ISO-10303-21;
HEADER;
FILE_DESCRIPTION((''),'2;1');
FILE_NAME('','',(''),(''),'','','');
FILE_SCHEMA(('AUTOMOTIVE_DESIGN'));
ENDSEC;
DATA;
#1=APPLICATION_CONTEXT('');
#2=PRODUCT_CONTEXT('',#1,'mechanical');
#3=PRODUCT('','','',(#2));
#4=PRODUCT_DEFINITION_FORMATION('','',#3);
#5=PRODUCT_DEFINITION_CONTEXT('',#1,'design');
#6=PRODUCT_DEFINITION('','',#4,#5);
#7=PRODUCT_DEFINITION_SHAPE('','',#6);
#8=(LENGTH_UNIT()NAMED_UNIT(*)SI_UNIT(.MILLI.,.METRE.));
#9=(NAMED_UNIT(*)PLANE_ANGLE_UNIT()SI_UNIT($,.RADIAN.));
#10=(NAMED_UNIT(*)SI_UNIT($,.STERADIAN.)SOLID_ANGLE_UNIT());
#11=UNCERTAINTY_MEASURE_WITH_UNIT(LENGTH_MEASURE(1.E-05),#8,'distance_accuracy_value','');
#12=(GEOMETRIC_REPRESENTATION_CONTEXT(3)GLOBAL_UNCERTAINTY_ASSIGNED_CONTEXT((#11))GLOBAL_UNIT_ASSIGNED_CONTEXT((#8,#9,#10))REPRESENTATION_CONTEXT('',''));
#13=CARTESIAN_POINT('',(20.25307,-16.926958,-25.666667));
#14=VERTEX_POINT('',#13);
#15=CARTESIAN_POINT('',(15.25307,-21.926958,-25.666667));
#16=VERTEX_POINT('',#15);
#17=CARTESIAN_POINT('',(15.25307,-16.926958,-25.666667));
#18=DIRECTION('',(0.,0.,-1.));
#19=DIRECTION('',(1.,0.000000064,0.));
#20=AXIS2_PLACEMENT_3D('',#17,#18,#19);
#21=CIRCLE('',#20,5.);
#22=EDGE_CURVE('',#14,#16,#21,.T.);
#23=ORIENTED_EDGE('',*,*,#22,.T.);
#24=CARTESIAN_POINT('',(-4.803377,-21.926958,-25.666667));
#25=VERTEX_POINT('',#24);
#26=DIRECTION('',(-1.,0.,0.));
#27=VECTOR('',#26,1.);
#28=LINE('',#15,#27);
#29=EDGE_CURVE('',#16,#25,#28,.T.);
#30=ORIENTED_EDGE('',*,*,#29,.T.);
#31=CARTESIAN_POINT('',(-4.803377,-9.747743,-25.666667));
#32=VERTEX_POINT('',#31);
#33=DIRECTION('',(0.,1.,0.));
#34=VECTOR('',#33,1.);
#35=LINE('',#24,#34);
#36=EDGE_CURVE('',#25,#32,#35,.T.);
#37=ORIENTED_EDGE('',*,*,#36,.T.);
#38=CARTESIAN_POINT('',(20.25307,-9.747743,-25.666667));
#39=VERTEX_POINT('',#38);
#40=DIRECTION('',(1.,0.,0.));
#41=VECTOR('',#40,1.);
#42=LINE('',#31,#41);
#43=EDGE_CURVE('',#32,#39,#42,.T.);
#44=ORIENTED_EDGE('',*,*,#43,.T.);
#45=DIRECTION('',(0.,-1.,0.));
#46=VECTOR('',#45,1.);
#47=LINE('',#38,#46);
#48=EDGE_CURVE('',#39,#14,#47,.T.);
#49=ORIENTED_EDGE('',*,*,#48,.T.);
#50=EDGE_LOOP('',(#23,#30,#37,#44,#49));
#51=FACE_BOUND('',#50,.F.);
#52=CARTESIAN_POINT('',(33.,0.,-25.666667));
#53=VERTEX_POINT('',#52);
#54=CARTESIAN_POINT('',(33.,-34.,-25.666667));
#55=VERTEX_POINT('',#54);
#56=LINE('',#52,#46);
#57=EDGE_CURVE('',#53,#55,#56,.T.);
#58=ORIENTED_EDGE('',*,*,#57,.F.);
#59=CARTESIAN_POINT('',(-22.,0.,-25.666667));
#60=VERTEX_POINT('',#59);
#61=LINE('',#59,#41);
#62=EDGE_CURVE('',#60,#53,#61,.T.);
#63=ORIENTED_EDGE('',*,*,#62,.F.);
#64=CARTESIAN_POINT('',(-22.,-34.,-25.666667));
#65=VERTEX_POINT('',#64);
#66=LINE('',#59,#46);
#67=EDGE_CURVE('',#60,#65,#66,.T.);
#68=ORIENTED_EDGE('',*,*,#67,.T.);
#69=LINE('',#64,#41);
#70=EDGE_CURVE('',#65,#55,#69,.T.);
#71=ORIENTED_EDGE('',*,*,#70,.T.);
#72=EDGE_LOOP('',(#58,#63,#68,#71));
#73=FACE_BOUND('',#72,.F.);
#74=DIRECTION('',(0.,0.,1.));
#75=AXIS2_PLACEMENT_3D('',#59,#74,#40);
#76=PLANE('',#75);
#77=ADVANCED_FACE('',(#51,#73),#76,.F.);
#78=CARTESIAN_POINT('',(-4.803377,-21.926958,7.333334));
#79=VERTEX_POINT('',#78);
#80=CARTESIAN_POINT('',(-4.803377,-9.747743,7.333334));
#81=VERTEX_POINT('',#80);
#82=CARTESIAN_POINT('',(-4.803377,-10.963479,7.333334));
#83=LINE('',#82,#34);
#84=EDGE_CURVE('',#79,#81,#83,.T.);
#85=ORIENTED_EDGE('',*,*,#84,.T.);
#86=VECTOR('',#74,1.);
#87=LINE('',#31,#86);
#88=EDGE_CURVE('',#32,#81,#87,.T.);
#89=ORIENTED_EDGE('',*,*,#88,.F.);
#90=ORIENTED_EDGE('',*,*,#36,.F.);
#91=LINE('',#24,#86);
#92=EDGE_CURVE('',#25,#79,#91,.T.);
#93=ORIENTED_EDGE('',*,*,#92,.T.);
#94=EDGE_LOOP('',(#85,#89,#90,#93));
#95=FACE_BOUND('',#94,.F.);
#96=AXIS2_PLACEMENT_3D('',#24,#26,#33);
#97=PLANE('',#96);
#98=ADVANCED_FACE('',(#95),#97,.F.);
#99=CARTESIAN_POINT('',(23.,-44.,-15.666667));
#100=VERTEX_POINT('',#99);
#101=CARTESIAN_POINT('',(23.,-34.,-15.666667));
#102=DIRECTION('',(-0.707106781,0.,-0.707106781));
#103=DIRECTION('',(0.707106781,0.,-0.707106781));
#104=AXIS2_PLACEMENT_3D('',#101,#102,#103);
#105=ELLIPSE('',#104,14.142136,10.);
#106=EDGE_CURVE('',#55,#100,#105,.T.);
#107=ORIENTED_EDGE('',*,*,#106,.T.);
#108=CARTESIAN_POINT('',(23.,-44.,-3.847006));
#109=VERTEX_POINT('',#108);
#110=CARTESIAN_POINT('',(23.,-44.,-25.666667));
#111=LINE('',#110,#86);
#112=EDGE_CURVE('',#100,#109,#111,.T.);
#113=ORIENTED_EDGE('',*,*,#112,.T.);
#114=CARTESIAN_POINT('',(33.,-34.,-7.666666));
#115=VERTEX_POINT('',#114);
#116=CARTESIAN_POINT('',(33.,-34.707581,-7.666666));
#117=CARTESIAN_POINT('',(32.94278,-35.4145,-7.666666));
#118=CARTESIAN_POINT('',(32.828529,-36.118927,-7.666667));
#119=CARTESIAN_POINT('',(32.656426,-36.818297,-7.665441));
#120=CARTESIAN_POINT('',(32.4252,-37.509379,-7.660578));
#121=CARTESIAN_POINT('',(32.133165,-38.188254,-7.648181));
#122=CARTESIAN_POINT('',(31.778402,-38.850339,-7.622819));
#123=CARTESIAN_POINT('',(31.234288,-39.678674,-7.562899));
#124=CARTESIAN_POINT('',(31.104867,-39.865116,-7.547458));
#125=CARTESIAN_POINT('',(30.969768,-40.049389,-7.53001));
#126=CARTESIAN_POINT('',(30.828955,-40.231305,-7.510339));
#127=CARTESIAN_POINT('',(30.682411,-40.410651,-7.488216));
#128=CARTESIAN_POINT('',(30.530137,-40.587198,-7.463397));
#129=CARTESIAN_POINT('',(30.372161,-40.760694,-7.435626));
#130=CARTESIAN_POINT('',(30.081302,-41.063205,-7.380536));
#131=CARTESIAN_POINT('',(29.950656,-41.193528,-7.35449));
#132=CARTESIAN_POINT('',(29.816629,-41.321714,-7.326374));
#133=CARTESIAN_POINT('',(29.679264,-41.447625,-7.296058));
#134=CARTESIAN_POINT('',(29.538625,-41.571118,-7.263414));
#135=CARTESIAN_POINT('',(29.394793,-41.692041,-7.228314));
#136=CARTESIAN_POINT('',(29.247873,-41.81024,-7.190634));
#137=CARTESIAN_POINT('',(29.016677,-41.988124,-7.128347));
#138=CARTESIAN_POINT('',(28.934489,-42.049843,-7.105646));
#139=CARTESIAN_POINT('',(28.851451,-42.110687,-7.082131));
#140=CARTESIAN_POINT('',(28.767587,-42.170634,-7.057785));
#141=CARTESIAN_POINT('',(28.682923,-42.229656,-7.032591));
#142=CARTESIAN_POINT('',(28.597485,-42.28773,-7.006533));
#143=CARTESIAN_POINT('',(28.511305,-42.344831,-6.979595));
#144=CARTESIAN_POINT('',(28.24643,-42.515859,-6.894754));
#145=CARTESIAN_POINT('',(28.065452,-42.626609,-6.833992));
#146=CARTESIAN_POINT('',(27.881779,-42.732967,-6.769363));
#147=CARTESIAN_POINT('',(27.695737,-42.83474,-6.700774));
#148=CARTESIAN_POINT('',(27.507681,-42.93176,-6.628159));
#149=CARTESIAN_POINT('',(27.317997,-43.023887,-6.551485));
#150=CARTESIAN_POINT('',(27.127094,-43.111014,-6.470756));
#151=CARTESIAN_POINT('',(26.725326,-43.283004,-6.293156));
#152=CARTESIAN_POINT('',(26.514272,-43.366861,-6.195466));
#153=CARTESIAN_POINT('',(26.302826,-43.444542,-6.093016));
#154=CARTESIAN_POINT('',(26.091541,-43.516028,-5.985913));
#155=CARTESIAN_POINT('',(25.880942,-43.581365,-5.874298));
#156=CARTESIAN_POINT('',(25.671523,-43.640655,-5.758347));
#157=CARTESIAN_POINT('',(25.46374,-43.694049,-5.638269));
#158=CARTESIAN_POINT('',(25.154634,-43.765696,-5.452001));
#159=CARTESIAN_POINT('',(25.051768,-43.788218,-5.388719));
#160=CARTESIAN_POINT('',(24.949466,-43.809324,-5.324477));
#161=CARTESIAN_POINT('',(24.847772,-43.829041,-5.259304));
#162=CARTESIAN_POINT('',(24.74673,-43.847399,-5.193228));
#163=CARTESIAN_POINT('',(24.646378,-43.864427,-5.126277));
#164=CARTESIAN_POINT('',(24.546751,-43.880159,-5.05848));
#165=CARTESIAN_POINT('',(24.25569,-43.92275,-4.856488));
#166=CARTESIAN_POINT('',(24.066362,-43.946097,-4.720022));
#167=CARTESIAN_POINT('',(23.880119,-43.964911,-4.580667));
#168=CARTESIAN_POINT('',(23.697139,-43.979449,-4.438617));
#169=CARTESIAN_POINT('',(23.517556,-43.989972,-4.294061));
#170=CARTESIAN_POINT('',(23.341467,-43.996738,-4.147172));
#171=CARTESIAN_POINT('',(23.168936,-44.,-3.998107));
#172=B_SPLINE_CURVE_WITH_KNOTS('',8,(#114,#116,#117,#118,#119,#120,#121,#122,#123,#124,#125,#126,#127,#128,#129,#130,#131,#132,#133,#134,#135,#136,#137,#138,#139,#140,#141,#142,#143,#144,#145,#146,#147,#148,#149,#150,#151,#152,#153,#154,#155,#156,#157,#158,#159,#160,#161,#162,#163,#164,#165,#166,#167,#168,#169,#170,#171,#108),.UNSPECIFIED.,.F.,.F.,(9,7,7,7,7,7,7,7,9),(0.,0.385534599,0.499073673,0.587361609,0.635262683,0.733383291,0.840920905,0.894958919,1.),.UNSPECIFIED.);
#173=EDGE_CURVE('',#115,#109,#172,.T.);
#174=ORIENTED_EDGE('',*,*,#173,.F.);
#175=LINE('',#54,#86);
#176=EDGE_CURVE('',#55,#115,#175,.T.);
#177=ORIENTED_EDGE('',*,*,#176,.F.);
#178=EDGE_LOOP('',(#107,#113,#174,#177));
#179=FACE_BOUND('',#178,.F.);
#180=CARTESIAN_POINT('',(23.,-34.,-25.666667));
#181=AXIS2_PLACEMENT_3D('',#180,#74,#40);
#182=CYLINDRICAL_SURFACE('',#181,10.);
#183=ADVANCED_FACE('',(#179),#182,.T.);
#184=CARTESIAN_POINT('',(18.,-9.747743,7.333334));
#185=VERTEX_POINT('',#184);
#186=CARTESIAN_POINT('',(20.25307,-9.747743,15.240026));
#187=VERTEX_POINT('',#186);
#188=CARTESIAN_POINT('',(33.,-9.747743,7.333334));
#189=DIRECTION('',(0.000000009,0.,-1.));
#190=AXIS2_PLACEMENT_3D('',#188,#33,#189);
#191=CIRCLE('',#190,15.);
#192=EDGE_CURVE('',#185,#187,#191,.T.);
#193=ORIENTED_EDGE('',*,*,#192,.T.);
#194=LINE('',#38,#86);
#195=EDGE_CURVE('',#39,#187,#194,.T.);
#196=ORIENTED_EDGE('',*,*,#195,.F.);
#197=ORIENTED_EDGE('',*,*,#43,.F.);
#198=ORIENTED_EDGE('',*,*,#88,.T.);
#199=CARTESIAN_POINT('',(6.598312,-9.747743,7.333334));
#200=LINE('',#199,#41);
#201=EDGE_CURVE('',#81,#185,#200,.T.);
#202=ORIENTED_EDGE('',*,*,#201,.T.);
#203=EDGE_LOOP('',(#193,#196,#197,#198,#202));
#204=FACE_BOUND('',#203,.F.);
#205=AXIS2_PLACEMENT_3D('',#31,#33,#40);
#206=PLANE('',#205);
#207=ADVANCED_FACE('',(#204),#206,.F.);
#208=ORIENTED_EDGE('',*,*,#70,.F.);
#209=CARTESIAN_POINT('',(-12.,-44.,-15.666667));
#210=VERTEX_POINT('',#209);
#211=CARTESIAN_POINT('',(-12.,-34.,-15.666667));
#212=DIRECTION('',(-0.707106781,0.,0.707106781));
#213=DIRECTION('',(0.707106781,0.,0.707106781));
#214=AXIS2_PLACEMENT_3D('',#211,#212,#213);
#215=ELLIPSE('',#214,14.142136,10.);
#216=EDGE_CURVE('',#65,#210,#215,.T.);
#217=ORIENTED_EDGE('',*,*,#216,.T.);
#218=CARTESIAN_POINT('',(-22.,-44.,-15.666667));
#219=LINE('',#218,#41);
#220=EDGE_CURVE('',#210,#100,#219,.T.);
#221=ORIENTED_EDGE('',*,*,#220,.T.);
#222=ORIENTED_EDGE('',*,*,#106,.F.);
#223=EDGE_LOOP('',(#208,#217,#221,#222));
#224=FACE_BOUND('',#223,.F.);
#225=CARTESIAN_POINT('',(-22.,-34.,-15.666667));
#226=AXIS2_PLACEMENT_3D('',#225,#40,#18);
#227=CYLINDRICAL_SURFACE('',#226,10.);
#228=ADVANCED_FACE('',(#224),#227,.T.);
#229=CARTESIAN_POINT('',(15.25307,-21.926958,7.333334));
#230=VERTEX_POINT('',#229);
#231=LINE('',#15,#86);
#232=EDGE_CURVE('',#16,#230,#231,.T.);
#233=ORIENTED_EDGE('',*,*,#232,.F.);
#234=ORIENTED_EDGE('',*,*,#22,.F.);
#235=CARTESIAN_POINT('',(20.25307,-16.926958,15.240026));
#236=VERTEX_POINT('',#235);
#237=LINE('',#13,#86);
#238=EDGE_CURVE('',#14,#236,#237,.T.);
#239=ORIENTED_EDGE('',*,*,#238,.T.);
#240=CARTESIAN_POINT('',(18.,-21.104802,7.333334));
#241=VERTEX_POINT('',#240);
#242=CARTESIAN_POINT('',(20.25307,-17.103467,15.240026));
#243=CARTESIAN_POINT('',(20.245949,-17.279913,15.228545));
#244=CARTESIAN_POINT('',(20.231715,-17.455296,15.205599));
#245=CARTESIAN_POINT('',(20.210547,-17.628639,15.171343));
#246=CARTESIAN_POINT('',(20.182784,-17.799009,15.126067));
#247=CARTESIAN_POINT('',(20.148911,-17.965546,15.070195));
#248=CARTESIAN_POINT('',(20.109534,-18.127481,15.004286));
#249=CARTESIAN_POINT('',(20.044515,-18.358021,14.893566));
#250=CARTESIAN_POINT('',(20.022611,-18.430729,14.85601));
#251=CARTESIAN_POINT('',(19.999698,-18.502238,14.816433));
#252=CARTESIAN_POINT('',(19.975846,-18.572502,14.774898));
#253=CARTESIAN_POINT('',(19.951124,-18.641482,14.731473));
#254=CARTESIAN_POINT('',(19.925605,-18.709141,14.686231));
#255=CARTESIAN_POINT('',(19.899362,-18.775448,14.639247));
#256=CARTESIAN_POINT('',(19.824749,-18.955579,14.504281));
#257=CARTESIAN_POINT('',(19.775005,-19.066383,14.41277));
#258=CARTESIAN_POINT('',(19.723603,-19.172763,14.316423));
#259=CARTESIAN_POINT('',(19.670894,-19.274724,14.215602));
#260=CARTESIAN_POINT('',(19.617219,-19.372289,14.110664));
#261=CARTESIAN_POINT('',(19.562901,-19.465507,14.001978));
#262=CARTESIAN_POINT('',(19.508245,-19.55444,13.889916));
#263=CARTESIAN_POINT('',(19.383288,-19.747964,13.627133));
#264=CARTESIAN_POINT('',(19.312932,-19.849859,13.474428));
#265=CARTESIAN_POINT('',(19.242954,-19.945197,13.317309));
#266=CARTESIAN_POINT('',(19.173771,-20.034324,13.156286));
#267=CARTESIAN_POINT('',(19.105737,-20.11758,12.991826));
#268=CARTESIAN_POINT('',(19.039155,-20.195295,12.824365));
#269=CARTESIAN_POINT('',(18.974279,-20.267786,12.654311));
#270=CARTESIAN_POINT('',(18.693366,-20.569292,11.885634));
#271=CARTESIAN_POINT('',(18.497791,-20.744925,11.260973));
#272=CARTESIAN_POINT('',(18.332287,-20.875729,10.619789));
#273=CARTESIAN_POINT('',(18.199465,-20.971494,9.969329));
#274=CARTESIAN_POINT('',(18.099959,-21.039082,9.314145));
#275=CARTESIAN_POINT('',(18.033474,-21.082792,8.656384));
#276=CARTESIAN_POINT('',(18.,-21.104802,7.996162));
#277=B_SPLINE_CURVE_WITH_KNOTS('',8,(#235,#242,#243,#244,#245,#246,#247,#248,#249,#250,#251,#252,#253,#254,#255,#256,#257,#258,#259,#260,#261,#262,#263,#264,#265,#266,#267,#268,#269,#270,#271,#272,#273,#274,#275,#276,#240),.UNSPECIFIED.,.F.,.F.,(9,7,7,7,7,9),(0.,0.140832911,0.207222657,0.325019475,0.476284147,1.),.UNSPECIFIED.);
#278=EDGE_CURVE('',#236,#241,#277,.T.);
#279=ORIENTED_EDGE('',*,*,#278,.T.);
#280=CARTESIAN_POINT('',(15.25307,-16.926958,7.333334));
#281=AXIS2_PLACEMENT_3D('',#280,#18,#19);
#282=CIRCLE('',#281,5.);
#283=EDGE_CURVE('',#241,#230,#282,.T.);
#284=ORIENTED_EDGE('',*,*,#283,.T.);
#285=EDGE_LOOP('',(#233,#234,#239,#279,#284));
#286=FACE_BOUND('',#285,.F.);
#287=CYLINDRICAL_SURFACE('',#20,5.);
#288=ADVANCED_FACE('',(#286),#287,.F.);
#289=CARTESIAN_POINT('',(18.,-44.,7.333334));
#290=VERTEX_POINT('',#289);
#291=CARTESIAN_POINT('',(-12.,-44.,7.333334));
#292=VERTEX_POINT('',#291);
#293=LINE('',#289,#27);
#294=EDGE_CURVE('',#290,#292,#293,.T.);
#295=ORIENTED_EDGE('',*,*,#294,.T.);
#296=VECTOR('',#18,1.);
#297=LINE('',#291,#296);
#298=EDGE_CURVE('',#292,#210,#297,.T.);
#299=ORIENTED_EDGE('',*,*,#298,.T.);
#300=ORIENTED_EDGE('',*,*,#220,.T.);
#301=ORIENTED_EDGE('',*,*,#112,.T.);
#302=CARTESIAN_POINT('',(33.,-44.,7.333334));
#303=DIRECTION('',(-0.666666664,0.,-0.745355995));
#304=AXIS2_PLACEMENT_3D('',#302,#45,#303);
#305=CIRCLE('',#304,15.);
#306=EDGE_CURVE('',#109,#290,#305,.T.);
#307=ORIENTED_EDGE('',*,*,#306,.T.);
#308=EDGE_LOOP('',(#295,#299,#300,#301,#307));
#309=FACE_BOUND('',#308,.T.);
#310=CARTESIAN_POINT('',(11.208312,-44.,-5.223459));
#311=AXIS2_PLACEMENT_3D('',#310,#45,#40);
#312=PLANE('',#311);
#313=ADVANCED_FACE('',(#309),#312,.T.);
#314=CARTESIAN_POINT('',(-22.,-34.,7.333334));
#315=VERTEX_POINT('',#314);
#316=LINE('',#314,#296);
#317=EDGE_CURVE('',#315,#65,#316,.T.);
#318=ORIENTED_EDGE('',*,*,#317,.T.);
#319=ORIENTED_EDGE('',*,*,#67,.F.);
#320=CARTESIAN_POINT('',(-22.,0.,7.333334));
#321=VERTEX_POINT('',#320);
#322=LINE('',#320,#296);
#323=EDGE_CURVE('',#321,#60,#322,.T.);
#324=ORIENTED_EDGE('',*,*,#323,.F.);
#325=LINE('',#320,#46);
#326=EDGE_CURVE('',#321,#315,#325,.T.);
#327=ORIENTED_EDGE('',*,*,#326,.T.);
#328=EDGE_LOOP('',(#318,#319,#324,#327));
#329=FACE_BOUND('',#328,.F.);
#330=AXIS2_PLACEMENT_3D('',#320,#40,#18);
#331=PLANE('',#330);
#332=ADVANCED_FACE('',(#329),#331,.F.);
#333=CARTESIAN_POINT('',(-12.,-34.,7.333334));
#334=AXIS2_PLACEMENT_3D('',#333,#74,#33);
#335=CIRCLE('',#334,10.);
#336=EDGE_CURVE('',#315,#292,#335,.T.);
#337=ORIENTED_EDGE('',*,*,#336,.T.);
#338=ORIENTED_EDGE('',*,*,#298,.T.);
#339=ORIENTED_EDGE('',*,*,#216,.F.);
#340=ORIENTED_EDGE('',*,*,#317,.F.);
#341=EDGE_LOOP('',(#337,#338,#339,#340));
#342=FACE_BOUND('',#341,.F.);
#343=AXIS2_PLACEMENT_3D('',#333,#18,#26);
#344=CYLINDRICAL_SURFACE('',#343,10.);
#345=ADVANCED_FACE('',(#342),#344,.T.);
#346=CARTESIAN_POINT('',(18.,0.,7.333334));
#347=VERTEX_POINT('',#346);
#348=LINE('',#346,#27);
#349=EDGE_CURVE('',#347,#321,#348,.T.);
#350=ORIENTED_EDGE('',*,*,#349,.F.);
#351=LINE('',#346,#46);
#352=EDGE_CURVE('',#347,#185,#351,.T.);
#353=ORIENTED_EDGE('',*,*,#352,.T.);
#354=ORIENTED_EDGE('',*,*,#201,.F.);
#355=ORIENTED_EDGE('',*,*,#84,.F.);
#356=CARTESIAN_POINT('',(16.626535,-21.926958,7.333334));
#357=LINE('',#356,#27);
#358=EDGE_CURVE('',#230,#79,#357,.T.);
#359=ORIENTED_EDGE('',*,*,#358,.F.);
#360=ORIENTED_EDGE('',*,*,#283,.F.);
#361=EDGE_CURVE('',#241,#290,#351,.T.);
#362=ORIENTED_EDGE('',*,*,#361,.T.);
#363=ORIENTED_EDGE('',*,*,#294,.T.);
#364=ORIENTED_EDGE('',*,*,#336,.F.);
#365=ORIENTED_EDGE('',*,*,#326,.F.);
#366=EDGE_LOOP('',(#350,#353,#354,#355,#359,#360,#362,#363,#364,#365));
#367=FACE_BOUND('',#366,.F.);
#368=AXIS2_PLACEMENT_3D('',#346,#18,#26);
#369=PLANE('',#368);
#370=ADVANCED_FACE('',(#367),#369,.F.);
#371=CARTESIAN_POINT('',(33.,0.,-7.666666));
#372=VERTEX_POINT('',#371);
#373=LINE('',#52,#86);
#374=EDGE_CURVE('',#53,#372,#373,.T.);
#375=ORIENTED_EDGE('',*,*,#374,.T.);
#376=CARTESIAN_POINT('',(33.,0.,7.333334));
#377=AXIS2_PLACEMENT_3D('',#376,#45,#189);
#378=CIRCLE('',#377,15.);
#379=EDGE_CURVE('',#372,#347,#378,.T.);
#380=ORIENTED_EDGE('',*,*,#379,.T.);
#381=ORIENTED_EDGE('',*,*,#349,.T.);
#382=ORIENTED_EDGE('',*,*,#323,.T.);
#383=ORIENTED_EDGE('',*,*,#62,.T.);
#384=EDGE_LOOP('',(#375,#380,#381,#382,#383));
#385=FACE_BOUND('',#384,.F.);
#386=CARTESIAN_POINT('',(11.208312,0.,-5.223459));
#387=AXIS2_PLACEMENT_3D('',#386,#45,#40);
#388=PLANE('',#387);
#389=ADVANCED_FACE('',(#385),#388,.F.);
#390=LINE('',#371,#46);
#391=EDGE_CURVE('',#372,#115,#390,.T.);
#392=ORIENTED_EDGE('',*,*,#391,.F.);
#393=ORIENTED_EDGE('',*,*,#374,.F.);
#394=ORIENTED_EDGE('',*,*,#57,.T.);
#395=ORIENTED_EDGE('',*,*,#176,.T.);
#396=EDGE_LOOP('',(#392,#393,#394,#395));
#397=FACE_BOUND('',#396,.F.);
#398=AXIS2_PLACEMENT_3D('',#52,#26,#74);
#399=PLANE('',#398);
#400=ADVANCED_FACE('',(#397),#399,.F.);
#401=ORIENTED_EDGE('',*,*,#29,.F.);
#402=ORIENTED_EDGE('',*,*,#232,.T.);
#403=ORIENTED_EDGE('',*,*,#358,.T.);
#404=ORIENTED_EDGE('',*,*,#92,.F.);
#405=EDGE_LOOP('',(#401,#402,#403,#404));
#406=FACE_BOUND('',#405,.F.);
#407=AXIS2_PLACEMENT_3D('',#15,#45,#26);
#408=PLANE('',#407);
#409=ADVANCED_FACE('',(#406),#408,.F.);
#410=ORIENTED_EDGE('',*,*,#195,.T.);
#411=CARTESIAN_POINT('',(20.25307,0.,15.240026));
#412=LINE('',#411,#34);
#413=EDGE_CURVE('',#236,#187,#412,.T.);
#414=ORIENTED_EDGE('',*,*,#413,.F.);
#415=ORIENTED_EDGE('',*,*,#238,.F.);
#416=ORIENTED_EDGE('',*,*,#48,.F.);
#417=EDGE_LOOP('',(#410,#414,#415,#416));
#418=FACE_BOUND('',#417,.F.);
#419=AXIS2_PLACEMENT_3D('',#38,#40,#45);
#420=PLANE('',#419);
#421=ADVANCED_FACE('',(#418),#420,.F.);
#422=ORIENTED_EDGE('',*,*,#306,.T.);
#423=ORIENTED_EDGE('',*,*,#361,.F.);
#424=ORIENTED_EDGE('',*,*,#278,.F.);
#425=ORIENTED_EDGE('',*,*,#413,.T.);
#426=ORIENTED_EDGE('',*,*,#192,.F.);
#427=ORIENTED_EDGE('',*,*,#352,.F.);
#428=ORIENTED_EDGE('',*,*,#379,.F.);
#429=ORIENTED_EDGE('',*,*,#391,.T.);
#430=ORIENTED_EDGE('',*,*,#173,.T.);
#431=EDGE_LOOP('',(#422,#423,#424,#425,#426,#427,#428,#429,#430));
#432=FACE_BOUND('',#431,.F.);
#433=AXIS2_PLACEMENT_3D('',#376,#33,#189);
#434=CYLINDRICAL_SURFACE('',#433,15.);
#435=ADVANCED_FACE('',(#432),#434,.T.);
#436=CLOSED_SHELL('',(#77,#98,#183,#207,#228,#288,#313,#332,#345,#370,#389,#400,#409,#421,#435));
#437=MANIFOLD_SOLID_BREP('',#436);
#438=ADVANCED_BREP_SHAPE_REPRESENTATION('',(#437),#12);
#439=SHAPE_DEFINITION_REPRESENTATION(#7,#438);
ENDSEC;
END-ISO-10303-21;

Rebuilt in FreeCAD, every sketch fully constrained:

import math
import FreeCAD as App
import Part
import Sketcher


def edges_at(feature, points):
    """Names of the edges that pass closest to the given points."""
    edges = feature.Shape.Edges
    near = lambda p: min(range(len(edges)), key=lambda i: edges[i].distToShape(Part.Vertex(*p))[0])
    return sorted({f"Edge{near(p) + 1}" for p in points})

doc = App.newDocument("Part")
body = doc.addObject("PartDesign::Body", "Body")

# Sketch on XZ plane
sketch1 = body.newObject("Sketcher::SketchObject", "Sketch")
sketch1.AttachmentSupport = (doc.getObject("XZ_Plane"), [""])
sketch1.MapMode = "FlatFace"
sketch1.addGeometry([
    Part.LineSegment(App.Vector(18, 7, 0), App.Vector(-22, 7, 0)),  # 0
    Part.LineSegment(App.Vector(-22, 7, 0), App.Vector(-22, -26, 0)),  # 1
    Part.LineSegment(App.Vector(-22, -26, 0), App.Vector(33, -26, 0)),  # 2
    Part.LineSegment(App.Vector(33, -26, 0), App.Vector(33, -8, 0)),  # 3
    Part.ArcOfCircle(Part.Circle(App.Vector(33, 7, 0), App.Vector(0, 0, 1), 15), math.radians(-90), math.radians(180)),  # 4
], False)
sketch1.addConstraint([
    Sketcher.Constraint("Coincident", 0, 2, 1, 1),
    Sketcher.Constraint("Coincident", 1, 2, 2, 1),
    Sketcher.Constraint("Coincident", 2, 2, 3, 1),
    Sketcher.Constraint("Coincident", 3, 2, 4, 1),
    Sketcher.Constraint("Coincident", 4, 2, 0, 1),
    Sketcher.Constraint("Horizontal", 0),
    Sketcher.Constraint("Vertical", 1),
    Sketcher.Constraint("Horizontal", 2),
    Sketcher.Constraint("Vertical", 3),
    Sketcher.Constraint("Horizontal", 4, 3, 0, 2),
    Sketcher.Constraint("Vertical", 4, 3, 2, 2),
    Sketcher.Constraint("Radius", 4, 15.0),
    Sketcher.Constraint("DistanceX", 0, 2, 0, 1, 40.0),
    Sketcher.Constraint("DistanceY", 1, 2, 1, 1, 33.000001),
    Sketcher.Constraint("DistanceX", -1, 1, 4, 3, 33.0),
    Sketcher.Constraint("DistanceY", -1, 1, 4, 3, 7.333334),
])
pad1 = body.newObject("PartDesign::Pad", "Pad")
pad1.Profile = sketch1
pad1.Length = 44
doc.recompute()

fillet = body.newObject("PartDesign::Fillet", "Fillet")
fillet.Base = (pad1, edges_at(pad1, [(5.5, -44, -25.667), (33, -44, -16.667), (-22, -44, -9.167)]))
fillet.Radius = 10

# Sketch on XY plane
sketch2 = body.newObject("Sketcher::SketchObject", "Sketch001")
sketch2.AttachmentSupport = (doc.getObject("XY_Plane"), [""])
sketch2.MapMode = "FlatFace"
sketch2.AttachmentOffset = App.Placement(App.Vector(0, 0, -25.666667), App.Rotation())
sketch2.addGeometry([
    Part.LineSegment(App.Vector(15.3, -21.9, 0), App.Vector(-4.8, -21.9, 0)),  # 0
    Part.LineSegment(App.Vector(-4.8, -21.9, 0), App.Vector(-4.8, -9.7, 0)),  # 1
    Part.LineSegment(App.Vector(-4.8, -9.7, 0), App.Vector(20.3, -9.7, 0)),  # 2
    Part.LineSegment(App.Vector(20.3, -9.7, 0), App.Vector(20.3, -16.9, 0)),  # 3
    Part.ArcOfCircle(Part.Circle(App.Vector(15.3, -16.9, 0), App.Vector(0, 0, 1), 5), math.radians(-90), math.radians(0)),  # 4
], False)
sketch2.addConstraint([
    Sketcher.Constraint("Coincident", 0, 2, 1, 1),
    Sketcher.Constraint("Coincident", 1, 2, 2, 1),
    Sketcher.Constraint("Coincident", 2, 2, 3, 1),
    Sketcher.Constraint("Tangent", 3, 2, 4, 2),
    Sketcher.Constraint("Tangent", 4, 1, 0, 1),
    Sketcher.Constraint("Horizontal", 0),
    Sketcher.Constraint("Vertical", 1),
    Sketcher.Constraint("Horizontal", 2),
    Sketcher.Constraint("Vertical", 3),
    Sketcher.Constraint("Radius", 4, 5.0),
    Sketcher.Constraint("DistanceX", 0, 2, 0, 1, 20.056447),
    Sketcher.Constraint("DistanceY", 1, 1, 1, 2, 12.179215),
    Sketcher.Constraint("DistanceX", -1, 1, 4, 3, 15.25307),
    Sketcher.Constraint("DistanceY", 4, 3, -1, 1, 16.926958),
])
pocket1 = body.newObject("PartDesign::Pocket", "Pocket")
pocket1.Profile = sketch2
pocket1.Length = 50.9
pocket1.Reversed = True

doc.recompute()
